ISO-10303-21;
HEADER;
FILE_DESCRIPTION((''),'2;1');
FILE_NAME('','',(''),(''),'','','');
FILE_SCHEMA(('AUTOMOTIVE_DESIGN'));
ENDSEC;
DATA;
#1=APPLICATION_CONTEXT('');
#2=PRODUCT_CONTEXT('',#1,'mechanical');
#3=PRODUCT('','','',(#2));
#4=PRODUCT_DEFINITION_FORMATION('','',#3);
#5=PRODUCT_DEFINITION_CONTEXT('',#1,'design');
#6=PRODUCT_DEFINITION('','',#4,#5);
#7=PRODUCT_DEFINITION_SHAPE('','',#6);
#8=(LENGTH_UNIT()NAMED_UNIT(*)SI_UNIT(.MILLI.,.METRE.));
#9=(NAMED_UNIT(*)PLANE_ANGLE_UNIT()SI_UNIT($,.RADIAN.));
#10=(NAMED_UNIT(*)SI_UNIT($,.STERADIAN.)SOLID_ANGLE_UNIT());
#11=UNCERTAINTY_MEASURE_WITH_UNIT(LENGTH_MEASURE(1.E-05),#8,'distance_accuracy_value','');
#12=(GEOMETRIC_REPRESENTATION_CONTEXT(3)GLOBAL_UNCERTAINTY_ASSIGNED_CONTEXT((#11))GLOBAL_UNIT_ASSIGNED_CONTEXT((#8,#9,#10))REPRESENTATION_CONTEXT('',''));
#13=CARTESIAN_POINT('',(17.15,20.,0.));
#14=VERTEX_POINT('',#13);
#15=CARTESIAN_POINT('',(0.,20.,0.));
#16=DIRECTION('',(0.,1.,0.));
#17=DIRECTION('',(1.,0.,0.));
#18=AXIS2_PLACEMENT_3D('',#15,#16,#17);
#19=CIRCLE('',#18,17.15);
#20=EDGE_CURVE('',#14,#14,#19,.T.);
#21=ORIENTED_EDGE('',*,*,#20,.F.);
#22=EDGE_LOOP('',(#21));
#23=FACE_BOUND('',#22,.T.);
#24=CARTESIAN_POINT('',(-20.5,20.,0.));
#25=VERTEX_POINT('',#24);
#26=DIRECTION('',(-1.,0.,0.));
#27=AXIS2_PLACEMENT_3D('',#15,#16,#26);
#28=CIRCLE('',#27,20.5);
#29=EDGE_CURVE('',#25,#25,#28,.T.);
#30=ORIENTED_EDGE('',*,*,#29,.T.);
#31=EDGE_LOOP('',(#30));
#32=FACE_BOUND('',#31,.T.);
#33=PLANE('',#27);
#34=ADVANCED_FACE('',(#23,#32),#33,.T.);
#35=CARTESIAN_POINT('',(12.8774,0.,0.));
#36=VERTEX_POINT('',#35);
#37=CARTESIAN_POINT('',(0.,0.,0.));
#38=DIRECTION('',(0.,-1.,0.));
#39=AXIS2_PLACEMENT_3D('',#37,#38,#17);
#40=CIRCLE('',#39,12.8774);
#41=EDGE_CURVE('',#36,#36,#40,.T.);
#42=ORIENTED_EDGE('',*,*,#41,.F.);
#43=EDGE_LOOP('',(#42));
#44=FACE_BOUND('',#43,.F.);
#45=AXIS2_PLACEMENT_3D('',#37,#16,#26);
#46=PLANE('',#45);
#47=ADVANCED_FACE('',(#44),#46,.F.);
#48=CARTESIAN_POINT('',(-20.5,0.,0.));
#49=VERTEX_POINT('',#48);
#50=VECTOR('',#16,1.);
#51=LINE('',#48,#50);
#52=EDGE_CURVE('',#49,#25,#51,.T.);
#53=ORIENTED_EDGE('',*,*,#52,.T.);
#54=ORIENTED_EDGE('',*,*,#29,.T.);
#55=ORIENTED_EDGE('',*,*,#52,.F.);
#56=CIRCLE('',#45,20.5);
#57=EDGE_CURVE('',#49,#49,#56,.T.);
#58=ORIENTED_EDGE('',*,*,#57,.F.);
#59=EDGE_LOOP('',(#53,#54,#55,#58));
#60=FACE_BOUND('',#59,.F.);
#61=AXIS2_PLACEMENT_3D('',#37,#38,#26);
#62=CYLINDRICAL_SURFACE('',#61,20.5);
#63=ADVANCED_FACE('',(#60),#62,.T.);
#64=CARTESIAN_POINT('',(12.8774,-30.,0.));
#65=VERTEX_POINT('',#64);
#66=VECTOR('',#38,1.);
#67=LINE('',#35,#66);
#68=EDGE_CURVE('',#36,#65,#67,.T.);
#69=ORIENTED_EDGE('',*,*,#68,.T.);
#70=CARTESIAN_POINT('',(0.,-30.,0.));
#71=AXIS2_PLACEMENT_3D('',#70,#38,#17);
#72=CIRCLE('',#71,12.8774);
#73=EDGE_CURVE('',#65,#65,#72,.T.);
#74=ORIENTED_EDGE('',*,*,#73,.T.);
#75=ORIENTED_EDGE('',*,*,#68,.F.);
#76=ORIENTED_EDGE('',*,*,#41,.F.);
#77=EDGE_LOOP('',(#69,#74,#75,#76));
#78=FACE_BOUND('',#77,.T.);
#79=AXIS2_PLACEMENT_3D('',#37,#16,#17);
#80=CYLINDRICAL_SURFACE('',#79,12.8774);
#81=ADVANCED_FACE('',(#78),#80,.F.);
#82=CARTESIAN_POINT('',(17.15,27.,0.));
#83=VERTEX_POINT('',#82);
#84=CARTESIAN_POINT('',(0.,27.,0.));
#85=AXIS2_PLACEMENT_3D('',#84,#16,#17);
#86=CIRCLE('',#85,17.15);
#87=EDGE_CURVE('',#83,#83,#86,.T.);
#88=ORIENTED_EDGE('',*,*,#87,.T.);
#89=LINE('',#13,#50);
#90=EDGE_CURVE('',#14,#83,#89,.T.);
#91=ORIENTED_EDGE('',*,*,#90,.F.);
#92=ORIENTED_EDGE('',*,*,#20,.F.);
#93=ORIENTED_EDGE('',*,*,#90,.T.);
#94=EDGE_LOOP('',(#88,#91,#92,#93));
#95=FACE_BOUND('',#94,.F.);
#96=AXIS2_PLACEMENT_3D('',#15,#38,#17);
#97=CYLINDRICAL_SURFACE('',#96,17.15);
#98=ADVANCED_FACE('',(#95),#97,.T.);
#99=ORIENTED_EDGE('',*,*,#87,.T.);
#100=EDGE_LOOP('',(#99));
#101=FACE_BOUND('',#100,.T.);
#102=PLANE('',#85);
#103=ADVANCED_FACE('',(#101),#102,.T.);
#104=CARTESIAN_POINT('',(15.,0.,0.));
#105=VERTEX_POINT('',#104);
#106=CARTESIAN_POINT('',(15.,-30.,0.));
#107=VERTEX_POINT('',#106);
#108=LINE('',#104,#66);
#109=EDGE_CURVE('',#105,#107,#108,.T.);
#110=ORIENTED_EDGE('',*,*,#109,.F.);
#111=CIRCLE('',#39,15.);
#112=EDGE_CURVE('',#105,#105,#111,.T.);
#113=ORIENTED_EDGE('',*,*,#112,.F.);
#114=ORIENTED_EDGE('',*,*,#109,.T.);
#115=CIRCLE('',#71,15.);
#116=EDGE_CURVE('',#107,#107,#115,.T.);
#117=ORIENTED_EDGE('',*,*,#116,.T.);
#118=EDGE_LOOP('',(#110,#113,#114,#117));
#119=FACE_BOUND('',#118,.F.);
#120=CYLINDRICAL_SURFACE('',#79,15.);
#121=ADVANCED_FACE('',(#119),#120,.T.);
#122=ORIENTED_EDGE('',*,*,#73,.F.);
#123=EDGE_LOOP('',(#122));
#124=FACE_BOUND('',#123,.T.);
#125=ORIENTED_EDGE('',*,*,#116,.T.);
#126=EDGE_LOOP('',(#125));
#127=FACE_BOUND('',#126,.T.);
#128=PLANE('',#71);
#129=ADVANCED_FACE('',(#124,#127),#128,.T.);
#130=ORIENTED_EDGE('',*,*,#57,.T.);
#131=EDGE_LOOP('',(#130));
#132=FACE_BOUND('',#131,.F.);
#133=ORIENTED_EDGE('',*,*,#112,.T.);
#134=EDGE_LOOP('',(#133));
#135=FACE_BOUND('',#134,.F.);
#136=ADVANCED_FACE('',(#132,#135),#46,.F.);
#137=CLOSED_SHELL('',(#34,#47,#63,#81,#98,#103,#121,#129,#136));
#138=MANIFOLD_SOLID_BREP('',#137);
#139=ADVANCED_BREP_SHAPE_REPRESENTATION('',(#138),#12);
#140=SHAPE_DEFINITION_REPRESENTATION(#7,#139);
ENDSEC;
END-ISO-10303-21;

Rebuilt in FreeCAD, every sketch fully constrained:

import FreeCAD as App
import Part
import Sketcher

V = App.Vector

doc = App.newDocument("Part")
body = doc.addObject("PartDesign::Body", "Body")

sketch1 = doc.addObject("Sketcher::SketchObject", "Sketch")
body.addObject(sketch1)
sketch1.AttachmentSupport = (doc.XZ_Plane, [""])
sketch1.MapMode = "FlatFace"
sketch1.addGeometry(Part.Circle(V(0, 0, 0), V(0, 0, 1), 20), False)
sketch1.addConstraint(Sketcher.Constraint("Coincident", 0, 3, -1, 1))
sketch1.addConstraint(Sketcher.Constraint("Diameter", 0, 41.0))
pad1 = doc.addObject("PartDesign::Pad", "Pad")
body.addObject(pad1)
pad1.Profile = sketch1
pad1.Length = 20
pad1.Reversed = True

sketch2 = doc.addObject("Sketcher::SketchObject", "Sketch001")
body.addObject(sketch2)
sketch2.AttachmentSupport = (doc.XZ_Plane, [""])
sketch2.MapMode = "FlatFace"
sketch2.AttachmentOffset = App.Placement(V(0, 0, -20), App.Rotation())
sketch2.addGeometry(Part.Circle(V(0, 0, 0), V(0, 0, 1), 17), False)
sketch2.addConstraint(Sketcher.Constraint("Coincident", 0, 3, -1, 1))
sketch2.addConstraint(Sketcher.Constraint("Diameter", 0, 34.3))
pad2 = doc.addObject("PartDesign::Pad", "Pad001")
body.addObject(pad2)
pad2.Profile = sketch2
pad2.Length = 7
pad2.Reversed = True

sketch3 = doc.addObject("Sketcher::SketchObject", "Sketch002")
body.addObject(sketch3)
sketch3.AttachmentSupport = (doc.XZ_Plane, [""])
sketch3.MapMode = "FlatFace"
sketch3.addGeometry(Part.Circle(V(0, 0, 0), V(0, 0, 1), 15), False)
sketch3.addGeometry(Part.Circle(V(0, 0, 0), V(0, 0, 1), 13), False)
sketch3.addConstraint(Sketcher.Constraint("Coincident", 0, 3, -1, 1))
sketch3.addConstraint(Sketcher.Constraint("Coincident", 1, 3, -1, 1))
sketch3.addConstraint(Sketcher.Constraint("Diameter", 0, 30.0))
sketch3.addConstraint(Sketcher.Constraint("Diameter", 1, 25.7548))
pad3 = doc.addObject("PartDesign::Pad", "Pad002")
body.addObject(pad3)
pad3.Profile = sketch3
pad3.Length = 30

doc.recompute()
